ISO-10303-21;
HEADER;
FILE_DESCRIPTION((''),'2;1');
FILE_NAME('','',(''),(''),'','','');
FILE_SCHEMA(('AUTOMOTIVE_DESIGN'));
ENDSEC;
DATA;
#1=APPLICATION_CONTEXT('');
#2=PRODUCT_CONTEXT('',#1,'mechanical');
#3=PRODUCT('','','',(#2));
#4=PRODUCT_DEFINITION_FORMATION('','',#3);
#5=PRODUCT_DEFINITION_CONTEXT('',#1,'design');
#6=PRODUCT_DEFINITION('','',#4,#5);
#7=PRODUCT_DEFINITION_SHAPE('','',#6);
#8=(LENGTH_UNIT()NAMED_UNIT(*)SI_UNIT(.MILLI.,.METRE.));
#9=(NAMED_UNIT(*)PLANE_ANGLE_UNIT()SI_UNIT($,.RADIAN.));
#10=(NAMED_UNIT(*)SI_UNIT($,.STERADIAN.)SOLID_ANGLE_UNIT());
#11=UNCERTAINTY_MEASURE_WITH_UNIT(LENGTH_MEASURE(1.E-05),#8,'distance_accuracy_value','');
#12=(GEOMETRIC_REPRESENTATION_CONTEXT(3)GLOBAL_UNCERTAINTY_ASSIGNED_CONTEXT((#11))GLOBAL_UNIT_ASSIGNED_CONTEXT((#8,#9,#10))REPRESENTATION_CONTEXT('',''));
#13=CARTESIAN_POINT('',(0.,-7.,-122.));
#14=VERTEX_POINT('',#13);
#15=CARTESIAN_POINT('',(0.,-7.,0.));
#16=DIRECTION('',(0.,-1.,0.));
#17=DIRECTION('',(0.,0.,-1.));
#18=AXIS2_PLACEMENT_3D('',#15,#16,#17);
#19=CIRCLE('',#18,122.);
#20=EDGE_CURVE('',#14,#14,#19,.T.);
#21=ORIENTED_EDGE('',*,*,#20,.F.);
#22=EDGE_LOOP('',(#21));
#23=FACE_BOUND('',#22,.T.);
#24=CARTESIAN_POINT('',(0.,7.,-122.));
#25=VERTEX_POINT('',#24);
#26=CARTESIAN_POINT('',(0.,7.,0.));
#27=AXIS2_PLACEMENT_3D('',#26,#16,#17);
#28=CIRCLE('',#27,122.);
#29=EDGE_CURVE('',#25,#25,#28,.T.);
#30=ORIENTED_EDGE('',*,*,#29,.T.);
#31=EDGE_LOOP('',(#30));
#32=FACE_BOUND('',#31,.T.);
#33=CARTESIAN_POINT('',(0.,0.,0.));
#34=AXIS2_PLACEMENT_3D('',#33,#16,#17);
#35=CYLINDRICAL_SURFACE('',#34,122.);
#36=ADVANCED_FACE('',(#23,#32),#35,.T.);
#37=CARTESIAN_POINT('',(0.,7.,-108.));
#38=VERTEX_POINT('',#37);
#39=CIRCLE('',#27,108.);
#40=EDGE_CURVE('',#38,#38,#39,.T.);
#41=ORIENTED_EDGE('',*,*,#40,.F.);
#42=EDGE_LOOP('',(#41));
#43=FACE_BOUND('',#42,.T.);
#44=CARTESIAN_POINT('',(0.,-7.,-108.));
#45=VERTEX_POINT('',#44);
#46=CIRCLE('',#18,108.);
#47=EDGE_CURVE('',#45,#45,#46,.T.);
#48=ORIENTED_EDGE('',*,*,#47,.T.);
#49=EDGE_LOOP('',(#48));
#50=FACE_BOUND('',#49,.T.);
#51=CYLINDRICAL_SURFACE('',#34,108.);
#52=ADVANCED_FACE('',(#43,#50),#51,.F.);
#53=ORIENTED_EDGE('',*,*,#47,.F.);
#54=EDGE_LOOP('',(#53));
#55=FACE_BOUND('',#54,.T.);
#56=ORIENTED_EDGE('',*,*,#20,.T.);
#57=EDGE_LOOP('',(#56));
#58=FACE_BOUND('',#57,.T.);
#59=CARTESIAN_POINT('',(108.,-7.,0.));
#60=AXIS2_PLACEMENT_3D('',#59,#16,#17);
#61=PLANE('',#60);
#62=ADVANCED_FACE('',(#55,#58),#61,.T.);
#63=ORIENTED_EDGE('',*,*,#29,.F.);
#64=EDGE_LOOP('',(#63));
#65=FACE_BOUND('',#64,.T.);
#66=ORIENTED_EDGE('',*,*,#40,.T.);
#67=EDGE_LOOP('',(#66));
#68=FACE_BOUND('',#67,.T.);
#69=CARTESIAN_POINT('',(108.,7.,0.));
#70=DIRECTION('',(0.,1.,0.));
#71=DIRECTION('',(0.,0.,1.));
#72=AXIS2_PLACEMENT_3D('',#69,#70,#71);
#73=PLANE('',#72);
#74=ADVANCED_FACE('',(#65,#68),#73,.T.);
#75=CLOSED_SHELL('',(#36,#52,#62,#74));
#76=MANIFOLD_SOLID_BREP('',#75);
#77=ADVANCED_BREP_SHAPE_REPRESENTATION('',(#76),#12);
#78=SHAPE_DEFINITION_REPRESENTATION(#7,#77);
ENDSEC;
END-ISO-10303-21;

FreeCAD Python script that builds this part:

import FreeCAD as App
import Part
import Sketcher
from FreeCAD import Vector
Q = App.Units.Quantity


def add_polygon(sketch, points):
    """Adds a closed chain of lines whose ends are joined by coincident constraints."""
    first, n = sketch.GeometryCount, len(points)
    for a, b in zip(points, points[1:] + points[:1]):
        sketch.addGeometry(Part.LineSegment(App.Vector(*a, 0), App.Vector(*b, 0)), False)
    for i in range(n):
        sketch.addConstraint(Sketcher.Constraint("Coincident", first + i, 2, first + (i + 1) % n, 1))

doc = App.newDocument("Part")
body = doc.addObject("PartDesign::Body", "Body")

sketch1 = doc.addObject("Sketcher::SketchObject", "Sketch")
body.addObject(sketch1)
sketch1.AttachmentSupport = (doc.XY_Plane, [""])
sketch1.MapMode = "FlatFace"
add_polygon(sketch1, [(108, 7), (108, -7), (122, -7), (122, 7)])
sketch1.addConstraint([
    Sketcher.Constraint("Vertical", 0),
    Sketcher.Constraint("Horizontal", 1),
    Sketcher.Constraint("Vertical", 2),
    Sketcher.Constraint("Horizontal", 3),
    Sketcher.Constraint("Equal", 3, 0),
    Sketcher.Constraint("DistanceX", 1, 1, 1, 2, Q("14 mm")),
    Sketcher.Constraint("DistanceX", -1, 1, 0, 2, Q("108 mm")),
    Sketcher.Constraint("DistanceY", 0, 2, -1, 1, Q("7 mm")),
])
revolution = doc.addObject("PartDesign::Revolution", "Revolution")
body.addObject(revolution)
revolution.Profile = sketch1
revolution.ReferenceAxis = (sketch1, ["V_Axis"])
revolution.Angle = 360

doc.recompute()
